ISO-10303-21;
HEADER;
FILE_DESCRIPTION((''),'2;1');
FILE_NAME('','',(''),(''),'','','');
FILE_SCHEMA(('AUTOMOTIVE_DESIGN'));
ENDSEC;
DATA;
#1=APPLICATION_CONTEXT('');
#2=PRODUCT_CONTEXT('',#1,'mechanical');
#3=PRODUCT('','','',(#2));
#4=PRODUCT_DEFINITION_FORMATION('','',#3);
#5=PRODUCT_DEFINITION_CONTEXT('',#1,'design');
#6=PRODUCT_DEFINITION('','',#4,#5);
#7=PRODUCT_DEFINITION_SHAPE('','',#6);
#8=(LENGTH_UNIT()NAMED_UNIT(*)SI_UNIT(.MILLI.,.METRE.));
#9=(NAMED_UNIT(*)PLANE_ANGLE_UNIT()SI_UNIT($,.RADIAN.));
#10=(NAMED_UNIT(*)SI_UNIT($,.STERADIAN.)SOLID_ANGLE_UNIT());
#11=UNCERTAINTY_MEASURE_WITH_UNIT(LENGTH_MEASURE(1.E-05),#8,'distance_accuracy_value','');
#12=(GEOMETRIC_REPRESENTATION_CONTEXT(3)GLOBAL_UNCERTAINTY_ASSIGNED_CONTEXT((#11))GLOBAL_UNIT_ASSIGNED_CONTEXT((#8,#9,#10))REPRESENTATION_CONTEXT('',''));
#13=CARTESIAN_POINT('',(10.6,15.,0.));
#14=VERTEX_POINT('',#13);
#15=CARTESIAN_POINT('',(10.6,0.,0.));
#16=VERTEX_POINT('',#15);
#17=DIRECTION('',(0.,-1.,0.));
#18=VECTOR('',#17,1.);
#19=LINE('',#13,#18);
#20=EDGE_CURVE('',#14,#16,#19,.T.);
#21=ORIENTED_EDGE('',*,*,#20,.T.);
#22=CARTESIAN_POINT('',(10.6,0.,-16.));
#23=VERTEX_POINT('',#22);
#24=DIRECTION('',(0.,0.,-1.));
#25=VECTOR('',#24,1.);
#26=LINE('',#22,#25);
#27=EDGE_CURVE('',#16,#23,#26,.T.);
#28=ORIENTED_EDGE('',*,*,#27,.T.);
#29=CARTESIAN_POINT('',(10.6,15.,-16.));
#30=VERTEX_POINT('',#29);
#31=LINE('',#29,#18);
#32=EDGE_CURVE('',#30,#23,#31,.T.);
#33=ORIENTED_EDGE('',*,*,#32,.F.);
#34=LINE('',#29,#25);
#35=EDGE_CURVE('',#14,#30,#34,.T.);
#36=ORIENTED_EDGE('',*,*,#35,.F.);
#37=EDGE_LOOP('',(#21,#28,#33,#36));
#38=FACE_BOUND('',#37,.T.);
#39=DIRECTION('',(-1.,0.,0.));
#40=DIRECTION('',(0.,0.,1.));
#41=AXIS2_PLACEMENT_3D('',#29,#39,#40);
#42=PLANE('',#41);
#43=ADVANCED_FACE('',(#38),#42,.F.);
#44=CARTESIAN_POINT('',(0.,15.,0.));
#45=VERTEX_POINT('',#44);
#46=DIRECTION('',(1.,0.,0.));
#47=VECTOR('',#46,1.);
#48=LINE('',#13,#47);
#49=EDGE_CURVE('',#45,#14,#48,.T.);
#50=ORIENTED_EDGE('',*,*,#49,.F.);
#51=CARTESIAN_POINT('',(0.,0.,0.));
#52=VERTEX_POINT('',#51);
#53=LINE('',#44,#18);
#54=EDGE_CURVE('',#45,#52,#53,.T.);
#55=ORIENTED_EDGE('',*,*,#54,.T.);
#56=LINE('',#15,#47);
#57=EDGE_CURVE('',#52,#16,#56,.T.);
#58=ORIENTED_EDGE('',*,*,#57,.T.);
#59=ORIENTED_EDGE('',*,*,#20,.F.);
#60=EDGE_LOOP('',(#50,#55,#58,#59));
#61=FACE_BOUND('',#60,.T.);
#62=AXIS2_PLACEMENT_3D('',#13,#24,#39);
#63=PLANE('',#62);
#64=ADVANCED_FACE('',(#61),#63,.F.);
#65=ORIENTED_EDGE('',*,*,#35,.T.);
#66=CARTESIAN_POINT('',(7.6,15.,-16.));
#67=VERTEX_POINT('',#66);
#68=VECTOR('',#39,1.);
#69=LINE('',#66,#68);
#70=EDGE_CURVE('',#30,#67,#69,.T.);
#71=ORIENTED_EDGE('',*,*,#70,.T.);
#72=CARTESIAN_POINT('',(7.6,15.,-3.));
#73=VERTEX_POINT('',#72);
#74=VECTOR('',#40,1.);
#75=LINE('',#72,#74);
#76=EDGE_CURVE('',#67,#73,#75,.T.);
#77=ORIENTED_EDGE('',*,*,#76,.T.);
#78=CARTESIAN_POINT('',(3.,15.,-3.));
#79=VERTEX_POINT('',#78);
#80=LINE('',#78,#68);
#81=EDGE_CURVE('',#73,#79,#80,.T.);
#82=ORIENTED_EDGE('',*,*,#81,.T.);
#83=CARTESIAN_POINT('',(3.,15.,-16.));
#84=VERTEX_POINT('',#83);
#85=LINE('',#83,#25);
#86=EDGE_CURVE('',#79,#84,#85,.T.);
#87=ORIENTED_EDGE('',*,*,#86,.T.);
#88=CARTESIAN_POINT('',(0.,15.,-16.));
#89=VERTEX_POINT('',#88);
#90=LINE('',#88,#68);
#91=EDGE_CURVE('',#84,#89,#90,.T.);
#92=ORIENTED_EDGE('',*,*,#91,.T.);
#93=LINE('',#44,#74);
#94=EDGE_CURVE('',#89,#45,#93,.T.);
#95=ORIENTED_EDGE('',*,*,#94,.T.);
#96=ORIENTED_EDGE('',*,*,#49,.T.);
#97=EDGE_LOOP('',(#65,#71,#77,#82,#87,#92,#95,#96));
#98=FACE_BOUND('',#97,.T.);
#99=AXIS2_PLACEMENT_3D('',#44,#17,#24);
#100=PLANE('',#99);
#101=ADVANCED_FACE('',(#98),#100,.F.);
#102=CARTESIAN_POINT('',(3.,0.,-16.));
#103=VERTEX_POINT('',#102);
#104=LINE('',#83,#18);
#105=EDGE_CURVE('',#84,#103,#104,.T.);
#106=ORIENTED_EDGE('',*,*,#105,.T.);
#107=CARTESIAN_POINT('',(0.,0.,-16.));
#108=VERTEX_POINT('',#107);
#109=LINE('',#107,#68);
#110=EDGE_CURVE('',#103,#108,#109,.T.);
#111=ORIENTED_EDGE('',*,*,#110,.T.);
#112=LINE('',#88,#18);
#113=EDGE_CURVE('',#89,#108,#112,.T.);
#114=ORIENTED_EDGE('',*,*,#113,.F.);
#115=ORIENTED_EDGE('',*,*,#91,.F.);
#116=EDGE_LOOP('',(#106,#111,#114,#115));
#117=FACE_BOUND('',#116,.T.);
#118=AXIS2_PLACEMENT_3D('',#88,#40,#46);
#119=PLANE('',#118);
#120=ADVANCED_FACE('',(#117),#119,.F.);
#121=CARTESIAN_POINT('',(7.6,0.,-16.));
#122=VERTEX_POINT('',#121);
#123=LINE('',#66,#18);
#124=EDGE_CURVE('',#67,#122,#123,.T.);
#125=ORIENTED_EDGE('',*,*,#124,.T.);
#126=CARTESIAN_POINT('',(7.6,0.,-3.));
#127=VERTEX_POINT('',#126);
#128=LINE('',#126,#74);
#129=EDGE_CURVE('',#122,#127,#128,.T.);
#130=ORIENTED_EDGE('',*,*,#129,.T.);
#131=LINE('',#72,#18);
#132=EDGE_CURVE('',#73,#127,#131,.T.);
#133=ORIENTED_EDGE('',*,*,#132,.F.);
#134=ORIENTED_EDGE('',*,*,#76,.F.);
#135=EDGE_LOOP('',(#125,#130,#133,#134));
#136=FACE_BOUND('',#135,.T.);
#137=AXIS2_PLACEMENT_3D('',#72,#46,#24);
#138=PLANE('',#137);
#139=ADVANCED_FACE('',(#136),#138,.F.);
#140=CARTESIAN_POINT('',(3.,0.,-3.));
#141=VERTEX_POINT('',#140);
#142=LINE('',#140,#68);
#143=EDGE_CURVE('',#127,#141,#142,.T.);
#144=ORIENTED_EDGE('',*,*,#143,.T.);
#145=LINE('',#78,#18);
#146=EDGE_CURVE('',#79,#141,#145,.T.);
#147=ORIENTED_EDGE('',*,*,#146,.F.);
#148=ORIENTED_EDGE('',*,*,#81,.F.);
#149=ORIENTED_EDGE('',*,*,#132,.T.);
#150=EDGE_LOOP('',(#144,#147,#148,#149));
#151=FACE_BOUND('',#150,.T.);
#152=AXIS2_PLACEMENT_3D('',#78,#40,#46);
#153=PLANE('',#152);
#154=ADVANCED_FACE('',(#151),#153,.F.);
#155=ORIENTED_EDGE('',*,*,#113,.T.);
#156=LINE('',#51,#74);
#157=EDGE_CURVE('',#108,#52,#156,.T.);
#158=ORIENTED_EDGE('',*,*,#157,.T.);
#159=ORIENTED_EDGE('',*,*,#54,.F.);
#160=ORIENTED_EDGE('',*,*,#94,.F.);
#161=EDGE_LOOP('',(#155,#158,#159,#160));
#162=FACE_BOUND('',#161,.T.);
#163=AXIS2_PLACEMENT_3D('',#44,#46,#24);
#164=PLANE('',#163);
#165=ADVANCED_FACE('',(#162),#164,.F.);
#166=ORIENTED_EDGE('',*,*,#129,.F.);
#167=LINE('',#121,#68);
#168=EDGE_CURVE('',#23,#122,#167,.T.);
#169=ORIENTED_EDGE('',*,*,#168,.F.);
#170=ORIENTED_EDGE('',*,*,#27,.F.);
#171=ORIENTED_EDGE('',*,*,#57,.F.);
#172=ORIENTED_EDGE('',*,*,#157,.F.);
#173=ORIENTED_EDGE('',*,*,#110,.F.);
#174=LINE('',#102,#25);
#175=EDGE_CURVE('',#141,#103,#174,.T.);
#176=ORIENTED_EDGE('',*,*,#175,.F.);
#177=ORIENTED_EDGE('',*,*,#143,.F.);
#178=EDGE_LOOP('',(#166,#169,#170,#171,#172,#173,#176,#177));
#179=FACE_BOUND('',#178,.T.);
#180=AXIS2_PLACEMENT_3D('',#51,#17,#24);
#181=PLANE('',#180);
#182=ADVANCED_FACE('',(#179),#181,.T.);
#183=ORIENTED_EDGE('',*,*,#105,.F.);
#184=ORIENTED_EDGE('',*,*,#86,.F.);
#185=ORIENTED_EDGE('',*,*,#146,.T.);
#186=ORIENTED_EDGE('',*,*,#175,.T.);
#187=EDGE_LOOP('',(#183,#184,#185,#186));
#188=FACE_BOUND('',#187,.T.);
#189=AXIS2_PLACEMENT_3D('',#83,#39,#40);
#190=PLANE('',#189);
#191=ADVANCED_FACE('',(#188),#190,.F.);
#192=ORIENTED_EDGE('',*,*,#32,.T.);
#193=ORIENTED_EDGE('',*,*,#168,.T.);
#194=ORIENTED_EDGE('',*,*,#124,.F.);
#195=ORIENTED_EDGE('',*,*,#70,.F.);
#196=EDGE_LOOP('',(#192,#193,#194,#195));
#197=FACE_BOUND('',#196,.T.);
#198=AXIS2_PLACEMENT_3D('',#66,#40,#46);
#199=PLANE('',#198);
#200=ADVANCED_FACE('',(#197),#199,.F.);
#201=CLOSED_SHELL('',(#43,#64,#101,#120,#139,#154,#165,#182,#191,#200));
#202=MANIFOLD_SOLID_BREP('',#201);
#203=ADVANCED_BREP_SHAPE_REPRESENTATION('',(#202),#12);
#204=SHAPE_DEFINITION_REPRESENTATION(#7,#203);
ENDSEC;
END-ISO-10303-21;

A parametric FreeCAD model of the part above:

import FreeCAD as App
import Part
import Sketcher

V = App.Vector

doc = App.newDocument("Part")
body = doc.addObject("PartDesign::Body", "Body")

sketch1 = doc.addObject("Sketcher::SketchObject", "Sketch")
body.addObject(sketch1)
sketch1.AttachmentSupport = (doc.XZ_Plane, [""])
sketch1.MapMode = "FlatFace"
sketch1.addGeometry([
    Part.LineSegment(V(0, -16, 0), V(0, 0, 0)),
    Part.LineSegment(V(0, 0, 0), V(10.6, 0, 0)),
    Part.LineSegment(V(10.6, 0, 0), V(10.6, -16, 0)),
    Part.LineSegment(V(10.6, -16, 0), V(7.6, -16, 0)),
    Part.LineSegment(V(7.6, -16, 0), V(7.6, -3, 0)),
    Part.LineSegment(V(7.6, -3, 0), V(3, -3, 0)),
    Part.LineSegment(V(3, -3, 0), V(3, -16, 0)),
    Part.LineSegment(V(3, -16, 0), V(0, -16, 0)),
], False)
sketch1.addConstraint([
    Sketcher.Constraint("Coincident", 0, 2, 1, 1),
    Sketcher.Constraint("Coincident", 1, 2, 2, 1),
    Sketcher.Constraint("Coincident", 2, 2, 3, 1),
    Sketcher.Constraint("Coincident", 3, 2, 4, 1),
    Sketcher.Constraint("Coincident", 4, 2, 5, 1),
    Sketcher.Constraint("Coincident", 5, 2, 6, 1),
    Sketcher.Constraint("Coincident", 6, 2, 7, 1),
    Sketcher.Constraint("Coincident", 7, 2, 0, 1),
    Sketcher.Constraint("Vertical", 0),
    Sketcher.Constraint("Horizontal", 1),
    Sketcher.Constraint("Vertical", 2),
    Sketcher.Constraint("Horizontal", 3),
    Sketcher.Constraint("Vertical", 4),
    Sketcher.Constraint("Horizontal", 5),
    Sketcher.Constraint("Vertical", 6),
    Sketcher.Constraint("Horizontal", 7),
    Sketcher.Constraint("Coincident", 0, 2, -1, 1),
    Sketcher.Constraint("Horizontal", 3, 2, 6, 2),
    Sketcher.Constraint("Equal", 3, 7),
    Sketcher.Constraint("DistanceX", 3, 2, 3, 1, 3.0),
    Sketcher.Constraint("DistanceY", 0, 1, 0, 2, 16.0),
    Sketcher.Constraint("DistanceY", 4, 1, 4, 2, 13.0),
    Sketcher.Constraint("DistanceX", 1, 1, 1, 2, 10.6),
])
pad1 = doc.addObject("PartDesign::Pad", "Pad")
body.addObject(pad1)
pad1.Profile = sketch1
pad1.Length = 15
pad1.Reversed = True

doc.recompute()
